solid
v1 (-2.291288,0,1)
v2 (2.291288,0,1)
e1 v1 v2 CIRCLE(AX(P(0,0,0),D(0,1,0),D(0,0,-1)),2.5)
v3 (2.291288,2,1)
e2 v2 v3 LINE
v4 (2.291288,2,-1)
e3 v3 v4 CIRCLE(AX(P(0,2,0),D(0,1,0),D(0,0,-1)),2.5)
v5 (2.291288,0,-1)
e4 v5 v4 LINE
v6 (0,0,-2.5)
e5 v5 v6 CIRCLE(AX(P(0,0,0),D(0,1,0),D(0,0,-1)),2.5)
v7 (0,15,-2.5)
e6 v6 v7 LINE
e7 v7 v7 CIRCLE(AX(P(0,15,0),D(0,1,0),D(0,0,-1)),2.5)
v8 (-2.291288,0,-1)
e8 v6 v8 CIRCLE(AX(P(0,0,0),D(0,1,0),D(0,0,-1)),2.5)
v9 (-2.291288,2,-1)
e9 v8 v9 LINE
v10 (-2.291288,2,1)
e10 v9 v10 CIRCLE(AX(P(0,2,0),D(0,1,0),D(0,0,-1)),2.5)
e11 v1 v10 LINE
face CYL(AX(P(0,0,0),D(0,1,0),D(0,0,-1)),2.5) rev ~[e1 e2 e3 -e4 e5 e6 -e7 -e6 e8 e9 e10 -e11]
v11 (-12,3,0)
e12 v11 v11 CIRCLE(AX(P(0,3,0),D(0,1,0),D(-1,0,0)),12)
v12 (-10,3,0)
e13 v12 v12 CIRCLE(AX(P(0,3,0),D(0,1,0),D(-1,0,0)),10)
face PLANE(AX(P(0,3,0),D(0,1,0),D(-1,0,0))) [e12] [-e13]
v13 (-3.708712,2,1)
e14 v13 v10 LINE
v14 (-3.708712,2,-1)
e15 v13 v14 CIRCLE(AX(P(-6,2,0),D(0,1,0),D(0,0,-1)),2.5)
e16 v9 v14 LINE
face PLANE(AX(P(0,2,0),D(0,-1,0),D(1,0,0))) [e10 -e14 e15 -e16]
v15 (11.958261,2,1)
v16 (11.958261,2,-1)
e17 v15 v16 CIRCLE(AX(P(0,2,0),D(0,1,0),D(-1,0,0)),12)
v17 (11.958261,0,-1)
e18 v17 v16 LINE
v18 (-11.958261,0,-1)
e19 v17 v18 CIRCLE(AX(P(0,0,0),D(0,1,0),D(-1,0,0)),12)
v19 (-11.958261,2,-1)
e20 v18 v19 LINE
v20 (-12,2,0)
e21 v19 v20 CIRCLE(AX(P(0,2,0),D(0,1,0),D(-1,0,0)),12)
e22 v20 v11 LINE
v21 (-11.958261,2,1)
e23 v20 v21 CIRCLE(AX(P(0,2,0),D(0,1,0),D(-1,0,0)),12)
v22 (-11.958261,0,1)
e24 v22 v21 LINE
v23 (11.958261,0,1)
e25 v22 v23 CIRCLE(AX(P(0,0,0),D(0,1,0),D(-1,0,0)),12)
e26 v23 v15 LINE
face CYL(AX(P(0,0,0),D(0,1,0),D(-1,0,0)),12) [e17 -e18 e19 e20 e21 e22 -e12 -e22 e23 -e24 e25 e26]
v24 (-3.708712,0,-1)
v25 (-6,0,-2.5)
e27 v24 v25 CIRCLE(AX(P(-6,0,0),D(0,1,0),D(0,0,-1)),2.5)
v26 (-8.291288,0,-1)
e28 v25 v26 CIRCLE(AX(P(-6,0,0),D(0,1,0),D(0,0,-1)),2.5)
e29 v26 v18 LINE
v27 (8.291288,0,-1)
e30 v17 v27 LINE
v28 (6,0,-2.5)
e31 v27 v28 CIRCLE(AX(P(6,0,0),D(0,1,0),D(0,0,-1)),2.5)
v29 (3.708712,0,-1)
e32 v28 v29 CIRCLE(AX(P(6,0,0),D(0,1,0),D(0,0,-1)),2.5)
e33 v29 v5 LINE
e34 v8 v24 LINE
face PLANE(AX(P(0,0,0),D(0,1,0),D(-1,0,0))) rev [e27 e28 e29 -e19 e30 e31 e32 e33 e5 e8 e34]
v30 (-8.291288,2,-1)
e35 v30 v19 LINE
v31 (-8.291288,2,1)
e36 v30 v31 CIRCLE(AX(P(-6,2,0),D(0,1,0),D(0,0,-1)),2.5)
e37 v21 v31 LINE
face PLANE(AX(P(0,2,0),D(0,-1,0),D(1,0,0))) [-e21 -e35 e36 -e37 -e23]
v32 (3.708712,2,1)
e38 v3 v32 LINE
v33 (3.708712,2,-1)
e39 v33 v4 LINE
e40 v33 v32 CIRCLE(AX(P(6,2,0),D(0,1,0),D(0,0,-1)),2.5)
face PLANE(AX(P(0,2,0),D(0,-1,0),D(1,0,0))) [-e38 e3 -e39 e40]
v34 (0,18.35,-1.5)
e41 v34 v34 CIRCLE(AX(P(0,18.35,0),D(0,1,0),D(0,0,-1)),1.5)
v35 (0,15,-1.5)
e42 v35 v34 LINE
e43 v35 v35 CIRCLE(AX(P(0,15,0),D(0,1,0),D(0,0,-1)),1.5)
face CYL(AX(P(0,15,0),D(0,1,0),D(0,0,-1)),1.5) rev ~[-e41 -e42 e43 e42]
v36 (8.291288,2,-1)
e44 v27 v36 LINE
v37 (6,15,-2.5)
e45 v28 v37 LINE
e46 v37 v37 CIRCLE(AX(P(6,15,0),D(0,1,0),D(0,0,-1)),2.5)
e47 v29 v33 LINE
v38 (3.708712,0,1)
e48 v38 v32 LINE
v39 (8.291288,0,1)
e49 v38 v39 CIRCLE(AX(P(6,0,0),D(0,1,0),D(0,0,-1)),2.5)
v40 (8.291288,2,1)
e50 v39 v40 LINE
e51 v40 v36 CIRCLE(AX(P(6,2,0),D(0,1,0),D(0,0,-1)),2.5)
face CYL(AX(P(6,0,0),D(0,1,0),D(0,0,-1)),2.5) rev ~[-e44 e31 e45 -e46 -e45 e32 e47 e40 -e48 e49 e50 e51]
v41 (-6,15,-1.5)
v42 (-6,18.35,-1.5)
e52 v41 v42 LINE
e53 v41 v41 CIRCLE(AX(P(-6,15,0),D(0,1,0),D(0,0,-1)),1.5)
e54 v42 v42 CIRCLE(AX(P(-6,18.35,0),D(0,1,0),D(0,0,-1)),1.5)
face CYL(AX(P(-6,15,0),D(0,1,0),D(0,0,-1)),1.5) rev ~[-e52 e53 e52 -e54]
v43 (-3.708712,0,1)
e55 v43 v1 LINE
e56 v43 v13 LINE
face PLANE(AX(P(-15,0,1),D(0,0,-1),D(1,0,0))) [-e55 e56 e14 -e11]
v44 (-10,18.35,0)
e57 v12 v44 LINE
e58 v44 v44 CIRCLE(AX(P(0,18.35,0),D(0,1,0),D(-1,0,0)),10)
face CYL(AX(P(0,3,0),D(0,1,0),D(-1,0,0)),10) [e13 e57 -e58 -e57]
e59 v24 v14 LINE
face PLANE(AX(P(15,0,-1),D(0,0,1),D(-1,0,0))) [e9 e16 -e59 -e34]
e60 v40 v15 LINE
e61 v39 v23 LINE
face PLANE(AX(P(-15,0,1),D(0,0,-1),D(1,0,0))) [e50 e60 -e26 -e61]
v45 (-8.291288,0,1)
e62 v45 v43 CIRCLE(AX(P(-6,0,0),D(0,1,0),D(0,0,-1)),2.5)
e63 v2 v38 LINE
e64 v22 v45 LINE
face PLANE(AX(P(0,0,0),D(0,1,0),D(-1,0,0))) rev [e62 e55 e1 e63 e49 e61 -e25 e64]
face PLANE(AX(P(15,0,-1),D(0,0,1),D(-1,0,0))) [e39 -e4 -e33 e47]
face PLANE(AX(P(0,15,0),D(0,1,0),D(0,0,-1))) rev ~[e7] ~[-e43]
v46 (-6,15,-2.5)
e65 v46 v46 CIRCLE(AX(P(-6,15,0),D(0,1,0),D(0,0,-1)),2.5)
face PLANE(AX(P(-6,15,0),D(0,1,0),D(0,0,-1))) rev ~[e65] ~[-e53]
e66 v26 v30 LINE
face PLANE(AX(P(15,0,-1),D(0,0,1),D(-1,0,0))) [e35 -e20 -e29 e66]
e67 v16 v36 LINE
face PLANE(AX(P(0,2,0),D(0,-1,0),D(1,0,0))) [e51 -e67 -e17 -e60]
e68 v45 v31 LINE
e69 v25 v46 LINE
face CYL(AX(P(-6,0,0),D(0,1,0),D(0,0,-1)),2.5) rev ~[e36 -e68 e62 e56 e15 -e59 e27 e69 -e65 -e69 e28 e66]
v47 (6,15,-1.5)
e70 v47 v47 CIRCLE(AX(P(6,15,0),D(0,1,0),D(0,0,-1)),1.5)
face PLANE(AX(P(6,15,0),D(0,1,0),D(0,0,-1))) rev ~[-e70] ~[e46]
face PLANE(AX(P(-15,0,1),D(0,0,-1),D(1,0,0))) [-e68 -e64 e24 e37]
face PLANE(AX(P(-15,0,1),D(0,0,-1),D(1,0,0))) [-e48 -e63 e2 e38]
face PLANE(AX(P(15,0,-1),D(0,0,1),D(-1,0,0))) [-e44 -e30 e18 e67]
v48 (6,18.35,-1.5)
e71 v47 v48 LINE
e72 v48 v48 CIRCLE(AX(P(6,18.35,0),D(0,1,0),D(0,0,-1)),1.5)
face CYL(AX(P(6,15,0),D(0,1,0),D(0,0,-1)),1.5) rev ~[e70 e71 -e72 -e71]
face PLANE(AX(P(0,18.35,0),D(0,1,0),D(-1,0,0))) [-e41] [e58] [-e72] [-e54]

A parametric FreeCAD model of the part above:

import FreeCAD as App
import Part
import Sketcher

V = App.Vector


def add_polygon(sketch, points):
    """Adds a closed chain of lines whose ends are joined by coincident constraints."""
    first, n = sketch.GeometryCount, len(points)
    for a, b in zip(points, points[1:] + points[:1]):
        sketch.addGeometry(Part.LineSegment(App.Vector(*a, 0), App.Vector(*b, 0)), False)
    for i in range(n):
        sketch.addConstraint(Sketcher.Constraint("Coincident", first + i, 2, first + (i + 1) % n, 1))

doc = App.newDocument("Part")
params = doc.addObject("Spreadsheet::Sheet", "Params")
for row, (alias, value) in enumerate([
    ("sketch1_height", "3 mm"),
    ("sketch1_height2", "18.35 mm"),
    ("sketch1_width", "12 mm"),
    ("sketch1_width2", "10 mm"),
    ("revolution_angle", "360 deg"),
    ("sketch2_diameter", "3 mm"),
    ("hole_diameter", "3 mm"),
    ("hole_cbore_diameter", "5 mm"),
    ("hole_cbore_depth", "15 mm"),
    ("sketch3_width", "30 mm"),
    ("sketch3_height", "2 mm"),
    ("pocket1_length", "2 mm"),
], start=1):
    params.set(f"A{row}", alias)
    params.set(f"B{row}", "=" + value)
    params.setAlias(f"B{row}", alias)

body = doc.addObject("PartDesign::Body", "Body")

sketch1 = body.newObject("Sketcher::SketchObject", "Sketch")
sketch1.AttachmentSupport = (doc.getObject("XY_Plane"), [""])
sketch1.MapMode = "FlatFace"
add_polygon(sketch1, [(-12, 0), (0, 0), (0, 18.4), (-10, 18.4), (-10, 3), (-12, 3)])
sketch1.addConstraint([
    Sketcher.Constraint("Horizontal", 0),
    Sketcher.Constraint("Vertical", 1),
    Sketcher.Constraint("Horizontal", 2),
    Sketcher.Constraint("Vertical", 3),
    Sketcher.Constraint("Horizontal", 4),
    Sketcher.Constraint("Vertical", 5),
    Sketcher.Constraint("Coincident", 0, 2, -1, 1),
    Sketcher.Constraint("DistanceY", 5, 2, 5, 1, 3.0),
    Sketcher.Constraint("DistanceY", 1, 1, 1, 2, 18.35),
    Sketcher.Constraint("DistanceX", 0, 1, 0, 2, 12.0),
    Sketcher.Constraint("DistanceX", 2, 2, 2, 1, 10.0),
])
sketch1.setExpression("Constraints[13]", "Params.sketch1_height")
sketch1.setExpression("Constraints[14]", "Params.sketch1_height2")
sketch1.setExpression("Constraints[15]", "Params.sketch1_width")
sketch1.setExpression("Constraints[16]", "Params.sketch1_width2")
revolution = body.newObject("PartDesign::Revolution", "Revolution")
revolution.Profile = sketch1
revolution.ReferenceAxis = (sketch1, ["V_Axis"])
revolution.setExpression("Angle", "Params.revolution_angle")

sketch2 = body.newObject("Sketcher::SketchObject", "Sketch001")
sketch2.AttachmentSupport = (doc.getObject("XZ_Plane"), [""])
sketch2.MapMode = "FlatFace"
sketch2.addGeometry([
    Part.Circle(V(0, 0, 0), V(0, 0, 1), 1.5),
    Part.Circle(V(6, 0, 0), V(0, 0, 1), 1.5),
    Part.Circle(V(-6, 0, 0), V(0, 0, 1), 1.5),
], False)
sketch2.addConstraint([
    Sketcher.Constraint("Coincident", 0, 3, -1, 1),
    Sketcher.Constraint("Equal", 0, 1),
    Sketcher.Constraint("Equal", 1, 2),
    Sketcher.Constraint("Symmetric", 1, 3, 2, 3, -1, 1),
    Sketcher.Constraint("PointOnObject", 1, 3, -1),
    Sketcher.Constraint("Diameter", 0, 3.0),
    Sketcher.Constraint("DistanceX", -1, 1, 1, 3, 6.0),
])
sketch2.setExpression("Constraints[5]", "Params.sketch2_diameter")
doc.recompute()
hole = body.newObject("PartDesign::Hole", "Hole")
hole.Profile = sketch2
hole.ThreadType = "None"
hole.setExpression("Diameter", "Params.hole_diameter")
hole.DepthType = "ThroughAll"
hole.HoleCutType = "Counterbore"
hole.setExpression("HoleCutDiameter", "Params.hole_cbore_diameter")
hole.setExpression("HoleCutDepth", "Params.hole_cbore_depth")

sketch3 = body.newObject("Sketcher::SketchObject", "Sketch002")
sketch3.AttachmentSupport = (doc.getObject("XZ_Plane"), [""])
sketch3.MapMode = "FlatFace"
add_polygon(sketch3, [(15, 1), (-15, 1), (-15, -1), (15, -1)])
sketch3.addConstraint([
    Sketcher.Constraint("Horizontal", 0),
    Sketcher.Constraint("Vertical", 1),
    Sketcher.Constraint("Horizontal", 2),
    Sketcher.Constraint("Vertical", 3),
    Sketcher.Constraint("Symmetric", 0, 2, 2, 2, -1, 1),
    Sketcher.Constraint("DistanceX", 0, 2, 0, 1, 30.0),
    Sketcher.Constraint("DistanceY", 1, 2, 1, 1, 2.0),
])
sketch3.setExpression("Constraints[9]", "Params.sketch3_width")
sketch3.setExpression("Constraints[10]", "Params.sketch3_height")
pocket1 = body.newObject("PartDesign::Pocket", "Pocket")
pocket1.Profile = sketch3
pocket1.setExpression("Length", "Params.pocket1_length")

doc.recompute()
